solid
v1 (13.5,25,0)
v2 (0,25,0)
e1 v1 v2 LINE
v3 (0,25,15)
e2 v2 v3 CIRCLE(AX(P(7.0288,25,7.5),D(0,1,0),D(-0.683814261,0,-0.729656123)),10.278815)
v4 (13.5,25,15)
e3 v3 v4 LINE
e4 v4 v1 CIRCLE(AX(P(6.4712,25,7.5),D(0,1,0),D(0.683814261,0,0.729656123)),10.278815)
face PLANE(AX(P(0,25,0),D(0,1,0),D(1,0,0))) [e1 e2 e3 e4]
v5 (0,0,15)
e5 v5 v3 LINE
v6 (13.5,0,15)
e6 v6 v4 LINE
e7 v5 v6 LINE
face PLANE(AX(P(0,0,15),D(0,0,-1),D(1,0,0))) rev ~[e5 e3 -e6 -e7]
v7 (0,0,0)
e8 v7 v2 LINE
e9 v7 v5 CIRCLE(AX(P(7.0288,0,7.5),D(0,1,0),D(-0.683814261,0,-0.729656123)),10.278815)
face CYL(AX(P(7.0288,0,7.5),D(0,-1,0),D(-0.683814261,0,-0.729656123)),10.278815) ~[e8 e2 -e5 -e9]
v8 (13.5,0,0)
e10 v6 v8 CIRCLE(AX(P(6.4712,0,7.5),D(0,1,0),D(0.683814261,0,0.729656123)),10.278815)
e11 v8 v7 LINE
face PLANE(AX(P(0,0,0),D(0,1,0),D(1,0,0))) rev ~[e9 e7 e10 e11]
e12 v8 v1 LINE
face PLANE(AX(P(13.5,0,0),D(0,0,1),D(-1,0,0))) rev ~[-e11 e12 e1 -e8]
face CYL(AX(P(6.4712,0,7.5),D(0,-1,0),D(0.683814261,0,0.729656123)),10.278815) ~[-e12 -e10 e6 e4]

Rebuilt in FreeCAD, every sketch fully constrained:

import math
import FreeCAD as App
import Part
import Sketcher

doc = App.newDocument("Part")
body = doc.addObject("PartDesign::Body", "Body")

# Sketch on XZ plane
sketch1 = body.newObject("Sketcher::SketchObject", "Sketch")
sketch1.AttachmentSupport = (doc.getObject("XZ_Plane"), [""])
sketch1.MapMode = "FlatFace"
sketch1.addGeometry([
    Part.ArcOfCircle(Part.Circle(App.Vector(7, 8, 0), App.Vector(0, 0, 1), 10), math.radians(133), math.radians(227)),
    Part.LineSegment(App.Vector(0, 15, 0), App.Vector(14, 15, 0)),
    Part.ArcOfCircle(Part.Circle(App.Vector(6, 8, 0), App.Vector(0, 0, 1), 10), math.radians(-47), math.radians(47)),
    Part.LineSegment(App.Vector(14, 0, 0), App.Vector(0, 0, 0)),
], False)
sketch1.addConstraint([
    Sketcher.Constraint("Coincident", 0, 1, 1, 1),
    Sketcher.Constraint("Coincident", 1, 2, 2, 2),
    Sketcher.Constraint("Coincident", 2, 1, 3, 1),
    Sketcher.Constraint("Coincident", 3, 2, 0, 2),
    Sketcher.Constraint("Horizontal", 1),
    Sketcher.Constraint("Horizontal", 3),
    Sketcher.Constraint("Coincident", 3, 2, -1, 1),
    Sketcher.Constraint("Equal", 0, 2),
    Sketcher.Constraint("PointOnObject", 0, 1, -2),
    Sketcher.Constraint("Horizontal", 0, 3, 2, 3),
    Sketcher.Constraint("DistanceX", 1, 1, 1, 2, 13.5),
    Sketcher.Constraint("DistanceY", -1, 1, 0, 1, 15.0),
    Sketcher.Constraint("Radius", 0, 10.2788),
])
pad1 = body.newObject("PartDesign::Pad", "Pad")
pad1.Profile = sketch1
pad1.Length = 25
pad1.Reversed = True

doc.recompute()
